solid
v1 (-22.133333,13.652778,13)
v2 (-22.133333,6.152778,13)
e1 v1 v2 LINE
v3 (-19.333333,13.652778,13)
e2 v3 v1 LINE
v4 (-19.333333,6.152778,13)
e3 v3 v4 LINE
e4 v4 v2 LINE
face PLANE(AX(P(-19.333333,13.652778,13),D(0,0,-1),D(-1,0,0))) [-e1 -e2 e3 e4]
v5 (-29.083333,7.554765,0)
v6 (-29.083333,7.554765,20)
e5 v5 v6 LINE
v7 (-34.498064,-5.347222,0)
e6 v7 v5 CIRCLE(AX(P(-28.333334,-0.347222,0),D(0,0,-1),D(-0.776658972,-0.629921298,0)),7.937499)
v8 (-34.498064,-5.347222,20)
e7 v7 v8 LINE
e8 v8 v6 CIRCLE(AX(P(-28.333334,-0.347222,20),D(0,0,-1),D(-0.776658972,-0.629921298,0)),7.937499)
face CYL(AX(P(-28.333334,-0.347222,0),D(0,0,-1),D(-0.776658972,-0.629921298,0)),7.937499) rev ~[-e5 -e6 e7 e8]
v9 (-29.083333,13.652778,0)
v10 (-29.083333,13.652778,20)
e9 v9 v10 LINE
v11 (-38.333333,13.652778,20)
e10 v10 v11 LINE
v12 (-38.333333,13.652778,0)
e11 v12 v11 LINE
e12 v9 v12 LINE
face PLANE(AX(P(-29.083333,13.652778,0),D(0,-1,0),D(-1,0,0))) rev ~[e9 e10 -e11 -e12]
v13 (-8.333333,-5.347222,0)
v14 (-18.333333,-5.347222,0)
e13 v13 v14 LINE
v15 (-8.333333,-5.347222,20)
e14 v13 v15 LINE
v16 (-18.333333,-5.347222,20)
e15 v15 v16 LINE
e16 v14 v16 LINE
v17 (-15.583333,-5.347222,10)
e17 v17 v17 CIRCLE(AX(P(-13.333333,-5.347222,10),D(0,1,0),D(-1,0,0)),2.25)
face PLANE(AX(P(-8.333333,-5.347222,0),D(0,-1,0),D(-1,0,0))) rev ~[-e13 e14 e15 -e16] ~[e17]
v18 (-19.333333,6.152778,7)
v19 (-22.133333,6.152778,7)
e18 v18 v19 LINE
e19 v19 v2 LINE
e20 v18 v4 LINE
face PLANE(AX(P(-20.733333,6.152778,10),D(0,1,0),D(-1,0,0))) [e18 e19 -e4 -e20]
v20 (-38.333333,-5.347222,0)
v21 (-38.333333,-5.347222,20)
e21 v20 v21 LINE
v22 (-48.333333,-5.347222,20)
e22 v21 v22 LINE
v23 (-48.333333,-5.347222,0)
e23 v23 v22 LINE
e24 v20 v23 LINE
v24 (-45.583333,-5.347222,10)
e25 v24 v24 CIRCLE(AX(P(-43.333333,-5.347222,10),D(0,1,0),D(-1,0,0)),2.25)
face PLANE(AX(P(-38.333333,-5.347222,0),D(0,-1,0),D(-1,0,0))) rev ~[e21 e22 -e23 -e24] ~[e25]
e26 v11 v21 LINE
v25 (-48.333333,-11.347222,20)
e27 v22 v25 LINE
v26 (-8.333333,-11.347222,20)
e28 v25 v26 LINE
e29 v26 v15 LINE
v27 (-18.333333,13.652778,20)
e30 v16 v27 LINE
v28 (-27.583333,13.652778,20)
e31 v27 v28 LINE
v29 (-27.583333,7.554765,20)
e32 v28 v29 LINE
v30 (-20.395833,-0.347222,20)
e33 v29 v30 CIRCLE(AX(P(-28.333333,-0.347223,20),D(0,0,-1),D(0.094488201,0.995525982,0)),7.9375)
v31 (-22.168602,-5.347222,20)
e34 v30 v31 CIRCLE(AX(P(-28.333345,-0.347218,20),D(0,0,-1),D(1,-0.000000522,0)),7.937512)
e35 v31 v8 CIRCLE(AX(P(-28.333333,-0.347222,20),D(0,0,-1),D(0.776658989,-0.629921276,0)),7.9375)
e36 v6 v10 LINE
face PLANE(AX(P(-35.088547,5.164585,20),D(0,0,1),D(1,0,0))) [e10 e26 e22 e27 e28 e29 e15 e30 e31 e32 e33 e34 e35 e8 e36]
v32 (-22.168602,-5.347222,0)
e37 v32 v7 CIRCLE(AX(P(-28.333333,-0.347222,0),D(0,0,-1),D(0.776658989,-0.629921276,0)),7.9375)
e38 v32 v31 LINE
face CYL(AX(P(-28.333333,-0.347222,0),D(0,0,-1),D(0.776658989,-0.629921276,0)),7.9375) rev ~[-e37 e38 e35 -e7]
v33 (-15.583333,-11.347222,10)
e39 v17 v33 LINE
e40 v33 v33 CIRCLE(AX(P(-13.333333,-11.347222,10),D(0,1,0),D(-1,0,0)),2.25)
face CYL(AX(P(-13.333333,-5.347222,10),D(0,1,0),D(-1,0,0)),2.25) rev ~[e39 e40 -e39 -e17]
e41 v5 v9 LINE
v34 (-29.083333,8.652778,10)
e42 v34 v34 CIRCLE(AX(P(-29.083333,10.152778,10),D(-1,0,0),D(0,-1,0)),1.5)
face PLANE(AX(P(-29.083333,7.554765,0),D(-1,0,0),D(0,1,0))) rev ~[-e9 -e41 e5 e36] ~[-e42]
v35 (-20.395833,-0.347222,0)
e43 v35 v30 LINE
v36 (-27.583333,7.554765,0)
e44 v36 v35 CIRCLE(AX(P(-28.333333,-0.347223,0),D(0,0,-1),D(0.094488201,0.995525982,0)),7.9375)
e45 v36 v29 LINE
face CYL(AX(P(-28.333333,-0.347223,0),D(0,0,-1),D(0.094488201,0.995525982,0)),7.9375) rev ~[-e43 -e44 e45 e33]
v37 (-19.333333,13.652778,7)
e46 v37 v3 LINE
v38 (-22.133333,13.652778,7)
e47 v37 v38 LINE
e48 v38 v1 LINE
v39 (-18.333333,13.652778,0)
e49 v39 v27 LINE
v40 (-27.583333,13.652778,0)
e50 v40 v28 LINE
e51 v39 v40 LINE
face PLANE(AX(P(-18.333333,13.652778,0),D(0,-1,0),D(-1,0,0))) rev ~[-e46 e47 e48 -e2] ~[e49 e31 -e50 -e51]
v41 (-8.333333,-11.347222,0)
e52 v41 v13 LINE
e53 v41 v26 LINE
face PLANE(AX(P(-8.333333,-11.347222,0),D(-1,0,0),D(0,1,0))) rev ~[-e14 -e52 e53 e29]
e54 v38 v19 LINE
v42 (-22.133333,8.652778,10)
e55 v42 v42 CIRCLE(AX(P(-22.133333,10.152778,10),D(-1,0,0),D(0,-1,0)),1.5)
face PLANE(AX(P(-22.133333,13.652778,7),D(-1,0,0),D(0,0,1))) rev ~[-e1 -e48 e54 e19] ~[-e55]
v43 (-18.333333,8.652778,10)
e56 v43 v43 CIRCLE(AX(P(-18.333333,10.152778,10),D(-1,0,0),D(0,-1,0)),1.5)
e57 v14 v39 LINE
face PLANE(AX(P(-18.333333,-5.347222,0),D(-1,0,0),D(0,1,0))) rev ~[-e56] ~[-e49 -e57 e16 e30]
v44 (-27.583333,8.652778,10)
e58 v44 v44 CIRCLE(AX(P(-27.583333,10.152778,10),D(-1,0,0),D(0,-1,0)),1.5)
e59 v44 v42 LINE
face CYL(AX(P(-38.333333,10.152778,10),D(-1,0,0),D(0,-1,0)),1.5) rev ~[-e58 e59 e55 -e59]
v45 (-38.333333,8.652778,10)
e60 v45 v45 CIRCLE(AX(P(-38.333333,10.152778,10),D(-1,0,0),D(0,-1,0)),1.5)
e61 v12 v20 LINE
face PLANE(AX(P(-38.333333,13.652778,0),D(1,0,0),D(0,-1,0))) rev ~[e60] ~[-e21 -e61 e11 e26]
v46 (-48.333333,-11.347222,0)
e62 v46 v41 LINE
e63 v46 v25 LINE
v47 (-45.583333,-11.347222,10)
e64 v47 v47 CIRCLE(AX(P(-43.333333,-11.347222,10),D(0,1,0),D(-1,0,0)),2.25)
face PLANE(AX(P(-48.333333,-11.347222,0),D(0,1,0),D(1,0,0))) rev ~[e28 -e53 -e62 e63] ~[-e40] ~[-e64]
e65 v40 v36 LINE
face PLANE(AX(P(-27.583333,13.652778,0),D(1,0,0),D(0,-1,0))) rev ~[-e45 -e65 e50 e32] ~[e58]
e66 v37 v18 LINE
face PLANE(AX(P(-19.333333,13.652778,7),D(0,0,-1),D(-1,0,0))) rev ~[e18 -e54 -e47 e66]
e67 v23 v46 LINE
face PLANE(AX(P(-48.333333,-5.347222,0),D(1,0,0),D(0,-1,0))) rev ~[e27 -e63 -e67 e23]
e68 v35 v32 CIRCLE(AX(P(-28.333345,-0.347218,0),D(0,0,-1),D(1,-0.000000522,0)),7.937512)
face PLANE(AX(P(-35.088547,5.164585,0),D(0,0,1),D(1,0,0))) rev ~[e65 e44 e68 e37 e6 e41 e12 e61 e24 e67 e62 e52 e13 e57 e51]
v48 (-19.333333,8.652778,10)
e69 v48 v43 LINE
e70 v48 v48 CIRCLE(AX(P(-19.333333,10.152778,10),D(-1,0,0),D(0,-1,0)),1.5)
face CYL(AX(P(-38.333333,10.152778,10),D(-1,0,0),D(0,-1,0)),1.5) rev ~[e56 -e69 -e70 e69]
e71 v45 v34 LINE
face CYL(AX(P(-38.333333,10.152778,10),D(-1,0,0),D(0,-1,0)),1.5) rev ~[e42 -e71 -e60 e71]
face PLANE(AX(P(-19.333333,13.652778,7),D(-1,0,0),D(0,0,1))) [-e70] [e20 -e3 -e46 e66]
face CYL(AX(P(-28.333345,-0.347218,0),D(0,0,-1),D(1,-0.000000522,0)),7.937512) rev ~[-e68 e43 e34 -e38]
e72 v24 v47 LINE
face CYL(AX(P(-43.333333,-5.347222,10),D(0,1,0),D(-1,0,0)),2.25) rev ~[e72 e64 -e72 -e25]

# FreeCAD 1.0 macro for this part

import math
import FreeCAD as App
import Part
import Sketcher
Q = App.Units.Quantity

doc = App.newDocument("Part")
body = doc.addObject("PartDesign::Body", "Body")

# Sketch on XY plane
sketch1 = body.newObject("Sketcher::SketchObject", "Sketch")
sketch1.AttachmentSupport = (doc.getObject("XY_Plane"), [""])
sketch1.MapMode = "FlatFace"
sketch1.addGeometry(Part.LineSegment(App.Vector(-38, 14, 0), App.Vector(-38, -5, 0)), False)
sketch1.addGeometry(Part.LineSegment(App.Vector(-38, -5, 0), App.Vector(-48, -5, 0)), False)
sketch1.addGeometry(Part.LineSegment(App.Vector(-48, -5, 0), App.Vector(-48, -11, 0)), False)
sketch1.addGeometry(Part.LineSegment(App.Vector(-48, -11, 0), App.Vector(-8, -11, 0)), False)
sketch1.addGeometry(Part.LineSegment(App.Vector(-8, -11, 0), App.Vector(-8, -5, 0)), False)
sketch1.addGeometry(Part.LineSegment(App.Vector(-8, -5, 0), App.Vector(-18, -5, 0)), False)
sketch1.addGeometry(Part.LineSegment(App.Vector(-18, -5, 0), App.Vector(-18, 14, 0)), False)
sketch1.addGeometry(Part.LineSegment(App.Vector(-18, 14, 0), App.Vector(-28, 14, 0)), False)
sketch1.addGeometry(Part.LineSegment(App.Vector(-28, 14, 0), App.Vector(-28, 8, 0)), False)
sketch1.addGeometry(Part.ArcOfCircle(Part.Circle(App.Vector(-28, 0, 0), App.Vector(0, 0, 1), 8), math.radians(0), math.radians(85)), False)
sketch1.addGeometry(Part.ArcOfCircle(Part.Circle(App.Vector(-28, 0, 0), App.Vector(0, 0, 1), 8), math.radians(-39), math.radians(0)), False)
sketch1.addGeometry(Part.ArcOfCircle(Part.Circle(App.Vector(-28, 0, 0), App.Vector(0, 0, 1), 8), math.radians(-141), math.radians(-39)), False)
sketch1.addGeometry(Part.ArcOfCircle(Part.Circle(App.Vector(-28, 0, 0), App.Vector(0, 0, 1), 8), math.radians(95), math.radians(219)), False)
sketch1.addGeometry(Part.LineSegment(App.Vector(-29, 8, 0), App.Vector(-29, 14, 0)), False)
sketch1.addGeometry(Part.LineSegment(App.Vector(-29, 14, 0), App.Vector(-38, 14, 0)), False)
sketch1.addConstraint(Sketcher.Constraint("Coincident", 0, 2, 1, 1))
sketch1.addConstraint(Sketcher.Constraint("Coincident", 1, 2, 2, 1))
sketch1.addConstraint(Sketcher.Constraint("Coincident", 2, 2, 3, 1))
sketch1.addConstraint(Sketcher.Constraint("Coincident", 3, 2, 4, 1))
sketch1.addConstraint(Sketcher.Constraint("Coincident", 4, 2, 5, 1))
sketch1.addConstraint(Sketcher.Constraint("Coincident", 5, 2, 6, 1))
sketch1.addConstraint(Sketcher.Constraint("Coincident", 6, 2, 7, 1))
sketch1.addConstraint(Sketcher.Constraint("Coincident", 7, 2, 8, 1))
sketch1.addConstraint(Sketcher.Constraint("Coincident", 8, 2, 9, 2))
sketch1.addConstraint(Sketcher.Constraint("Tangent", 9, 1, 10, 2))
sketch1.addConstraint(Sketcher.Constraint("Tangent", 10, 1, 11, 2))
sketch1.addConstraint(Sketcher.Constraint("Tangent", 11, 1, 12, 2))
sketch1.addConstraint(Sketcher.Constraint("Coincident", 12, 1, 13, 1))
sketch1.addConstraint(Sketcher.Constraint("Coincident", 13, 2, 14, 1))
sketch1.addConstraint(Sketcher.Constraint("Coincident", 14, 2, 0, 1))
sketch1.addConstraint(Sketcher.Constraint("Vertical", 0))
sketch1.addConstraint(Sketcher.Constraint("Horizontal", 1))
sketch1.addConstraint(Sketcher.Constraint("Vertical", 2))
sketch1.addConstraint(Sketcher.Constraint("Horizontal", 3))
sketch1.addConstraint(Sketcher.Constraint("Vertical", 4))
sketch1.addConstraint(Sketcher.Constraint("Horizontal", 5))
sketch1.addConstraint(Sketcher.Constraint("Vertical", 6))
sketch1.addConstraint(Sketcher.Constraint("Horizontal", 7))
sketch1.addConstraint(Sketcher.Constraint("Vertical", 8))
sketch1.addConstraint(Sketcher.Constraint("Vertical", 13))
sketch1.addConstraint(Sketcher.Constraint("Horizontal", 14))
sketch1.addConstraint(Sketcher.Constraint("Coincident", 11, 3, 9, 3))
sketch1.addConstraint(Sketcher.Constraint("Equal", 11, 12))
sketch1.addConstraint(Sketcher.Constraint("Horizontal", 1, 2, 4, 2))
sketch1.addConstraint(Sketcher.Constraint("Horizontal", 12, 3, 9, 1))
sketch1.addConstraint(Sketcher.Constraint("Horizontal", 5, 2, 10, 1))
sketch1.addConstraint(Sketcher.Constraint("Horizontal", 10, 1, 11, 1))
sketch1.addConstraint(Sketcher.Constraint("Horizontal", 8, 2, 12, 1))
sketch1.addConstraint(Sketcher.Constraint("Horizontal", 7, 2, 13, 2))
sketch1.addConstraint(Sketcher.Constraint("Equal", 1, 5))
sketch1.addConstraint(Sketcher.Constraint("Equal", 7, 14))
sketch1.addConstraint(Sketcher.Constraint("DistanceX", 1, 2, 1, 1, Q("10 mm")))
sketch1.addConstraint(Sketcher.Constraint("DistanceX", 3, 1, 3, 2, Q("40 mm")))
sketch1.addConstraint(Sketcher.Constraint("DistanceY", 0, 2, 0, 1, Q("19 mm")))
sketch1.addConstraint(Sketcher.Constraint("DistanceY", 2, 2, 2, 1, Q("6 mm")))
sketch1.addConstraint(Sketcher.Constraint("DistanceY", 0, 2, 12, 3, Q("5 mm")))
sketch1.addConstraint(Sketcher.Constraint("DistanceX", 7, 2, 7, 1, Q("9.25 mm")))
sketch1.addConstraint(Sketcher.Constraint("Radius", 9, Q("7.9375 mm")))
sketch1.addConstraint(Sketcher.Constraint("DistanceY", 11, 3, -1, 1, Q("0.347222 mm")))
sketch1.addConstraint(Sketcher.Constraint("DistanceX", 9, 3, -1, 1, Q("28.333333 mm")))
pad1 = body.newObject("PartDesign::Pad", "Pad")
pad1.Profile = sketch1
pad1.Length = 20

# Sketch on YZ plane
sketch2 = body.newObject("Sketcher::SketchObject", "Sketch001")
sketch2.AttachmentSupport = (doc.getObject("YZ_Plane"), [""])
sketch2.MapMode = "FlatFace"
sketch2.AttachmentOffset = App.Placement(App.Vector(0, 0, -38.333333), App.Rotation())
sketch2.addGeometry(Part.Circle(App.Vector(10.2, 10, 0), App.Vector(0, 0, 1), 1.5), False)
sketch2.addConstraint(Sketcher.Constraint("Diameter", 0, Q("3 mm")))
sketch2.addConstraint(Sketcher.Constraint("DistanceY", -1, 1, 0, 3, Q("10 mm")))
sketch2.addConstraint(Sketcher.Constraint("DistanceX", -1, 1, 0, 3, Q("10.152778 mm")))
pocket1 = body.newObject("PartDesign::Pocket", "Pocket")
pocket1.Profile = sketch2
pocket1.Length = 20
pocket1.Reversed = True

# Sketch on XZ plane
sketch3 = body.newObject("Sketcher::SketchObject", "Sketch002")
sketch3.AttachmentSupport = (doc.getObject("XZ_Plane"), [""])
sketch3.MapMode = "FlatFace"
sketch3.AttachmentOffset = App.Placement(App.Vector(0, 0, -13.652778), App.Rotation())
sketch3.addGeometry(Part.LineSegment(App.Vector(-19.3, 13, 0), App.Vector(-19.3, 7, 0)), False)
sketch3.addGeometry(Part.LineSegment(App.Vector(-19.3, 7, 0), App.Vector(-22.1, 7, 0)), False)
sketch3.addGeometry(Part.LineSegment(App.Vector(-22.1, 7, 0), App.Vector(-22.1, 13, 0)), False)
sketch3.addGeometry(Part.LineSegment(App.Vector(-22.1, 13, 0), App.Vector(-19.3, 13, 0)), False)
sketch3.addConstraint(Sketcher.Constraint("Coincident", 0, 2, 1, 1))
sketch3.addConstraint(Sketcher.Constraint("Coincident", 1, 2, 2, 1))
sketch3.addConstraint(Sketcher.Constraint("Coincident", 2, 2, 3, 1))
sketch3.addConstraint(Sketcher.Constraint("Coincident", 3, 2, 0, 1))
sketch3.addConstraint(Sketcher.Constraint("Vertical", 0))
sketch3.addConstraint(Sketcher.Constraint("Horizontal", 1))
sketch3.addConstraint(Sketcher.Constraint("Vertical", 2))
sketch3.addConstraint(Sketcher.Constraint("Horizontal", 3))
sketch3.addConstraint(Sketcher.Constraint("DistanceY", 0, 2, 0, 1, Q("6 mm")))
sketch3.addConstraint(Sketcher.Constraint("DistanceX", 1, 2, 1, 1, Q("2.8 mm")))
sketch3.addConstraint(Sketcher.Constraint("DistanceY", -1, 1, 0, 2, Q("7 mm")))
sketch3.addConstraint(Sketcher.Constraint("DistanceX", 0, 2, -1, 1, Q("19.333333 mm")))
pocket2 = body.newObject("PartDesign::Pocket", "Pocket001")
pocket2.Profile = sketch3
pocket2.Length = 7.5
pocket2.Reversed = True

# Sketch on XZ plane
sketch4 = body.newObject("Sketcher::SketchObject", "Sketch003")
sketch4.AttachmentSupport = (doc.getObject("XZ_Plane"), [""])
sketch4.MapMode = "FlatFace"
sketch4.AttachmentOffset = App.Placement(App.Vector(0, 0, 5.347222), App.Rotation())
sketch4.addGeometry(Part.Circle(App.Vector(-43.3, 10, 0), App.Vector(0, 0, 1), 2.2), False)
sketch4.addGeometry(Part.Circle(App.Vector(-13.3, 10, 0), App.Vector(0, 0, 1), 2.2), False)
sketch4.addConstraint(Sketcher.Constraint("Equal", 0, 1))
sketch4.addConstraint(Sketcher.Constraint("Horizontal", 0, 3, 1, 3))
sketch4.addConstraint(Sketcher.Constraint("Diameter", 0, Q("4.5 mm")))
sketch4.addConstraint(Sketcher.Constraint("DistanceY", -1, 1, 0, 3, Q("10 mm")))
sketch4.addConstraint(Sketcher.Constraint("DistanceX", 0, 3, 1, 3, Q("30 mm")))
sketch4.addConstraint(Sketcher.Constraint("DistanceX", 0, 3, -1, 1, Q("43.333333 mm")))
pocket3 = body.newObject("PartDesign::Pocket", "Pocket002")
pocket3.Profile = sketch4
pocket3.Length = 6
pocket3.Reversed = True

doc.recompute()
